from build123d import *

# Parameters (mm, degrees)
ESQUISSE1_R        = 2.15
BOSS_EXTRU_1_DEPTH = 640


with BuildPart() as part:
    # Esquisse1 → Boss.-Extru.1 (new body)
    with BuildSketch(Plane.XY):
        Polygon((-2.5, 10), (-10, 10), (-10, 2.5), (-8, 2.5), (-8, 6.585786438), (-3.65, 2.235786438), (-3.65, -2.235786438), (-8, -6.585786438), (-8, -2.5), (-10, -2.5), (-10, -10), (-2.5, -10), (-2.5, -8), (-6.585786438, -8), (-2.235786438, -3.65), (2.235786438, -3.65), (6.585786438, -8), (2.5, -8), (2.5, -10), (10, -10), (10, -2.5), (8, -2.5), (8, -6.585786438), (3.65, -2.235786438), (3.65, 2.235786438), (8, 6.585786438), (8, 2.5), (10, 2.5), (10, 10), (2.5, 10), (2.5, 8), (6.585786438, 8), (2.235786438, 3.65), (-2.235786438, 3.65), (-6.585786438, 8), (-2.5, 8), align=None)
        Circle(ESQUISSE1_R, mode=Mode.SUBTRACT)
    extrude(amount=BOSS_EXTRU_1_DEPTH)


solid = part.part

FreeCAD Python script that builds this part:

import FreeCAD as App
import Part
import Sketcher

V = App.Vector
Q = App.Units.Quantity


def add_polygon(sketch, points):
    """Adds a closed chain of lines whose ends are joined by coincident constraints."""
    first, n = sketch.GeometryCount, len(points)
    for a, b in zip(points, points[1:] + points[:1]):
        sketch.addGeometry(Part.LineSegment(App.Vector(*a, 0), App.Vector(*b, 0)), False)
    for i in range(n):
        sketch.addConstraint(Sketcher.Constraint("Coincident", first + i, 2, first + (i + 1) % n, 1))

doc = App.newDocument("Part")
body = doc.addObject("PartDesign::Body", "Body")

# Sketch on XY plane
sketch1 = doc.addObject("Sketcher::SketchObject", "Sketch")
body.addObject(sketch1)
sketch1.AttachmentSupport = (doc.XY_Plane, [""])
sketch1.MapMode = "FlatFace"
add_polygon(sketch1, [(-2.5, 10), (-10, 10), (-10, 2.5), (-8, 2.5), (-8, 6.585786), (-3.65, 2.235786), (-3.65, -2.235786), (-8, -6.585786), (-8, -2.5), (-10, -2.5), (-10, -10), (-2.5, -10), (-2.5, -8), (-6.585786, -8), (-2.235786, -3.65), (2.235786, -3.65), (6.585786, -8), (2.5, -8), (2.5, -10), (10, -10), (10, -2.5), (8, -2.5), (8, -6.585786), (3.65, -2.235786), (3.65, 2.235786), (8, 6.585786), (8, 2.5), (10, 2.5), (10, 10), (2.5, 10), (2.5, 8), (6.585786, 8), (2.235786, 3.65), (-2.235786, 3.65), (-6.585786, 8), (-2.5, 8)])  # lines 0-35
sketch1.addGeometry(Part.Circle(V(0, 0, 0), V(0, 0, 1), 2.15), False)  # 36
sketch1.addConstraint([
    Sketcher.Constraint("Horizontal", 0),
    Sketcher.Constraint("Vertical", 1),
    Sketcher.Constraint("Horizontal", 2),
    Sketcher.Constraint("Vertical", 3),
    Sketcher.Constraint("Vertical", 5),
    Sketcher.Constraint("Vertical", 7),
    Sketcher.Constraint("Horizontal", 8),
    Sketcher.Constraint("Vertical", 9),
    Sketcher.Constraint("Horizontal", 10),
    Sketcher.Constraint("Vertical", 11),
    Sketcher.Constraint("Horizontal", 12),
    Sketcher.Constraint("Horizontal", 14),
    Sketcher.Constraint("Horizontal", 16),
    Sketcher.Constraint("Vertical", 17),
    Sketcher.Constraint("Horizontal", 18),
    Sketcher.Constraint("Vertical", 19),
    Sketcher.Constraint("Horizontal", 20),
    Sketcher.Constraint("Vertical", 21),
    Sketcher.Constraint("Vertical", 23),
    Sketcher.Constraint("Vertical", 25),
    Sketcher.Constraint("Horizontal", 26),
    Sketcher.Constraint("Vertical", 27),
    Sketcher.Constraint("Horizontal", 28),
    Sketcher.Constraint("Vertical", 29),
    Sketcher.Constraint("Horizontal", 30),
    Sketcher.Constraint("Horizontal", 32),
    Sketcher.Constraint("Horizontal", 34),
    Sketcher.Constraint("Vertical", 35),
    Sketcher.Constraint("Coincident", 36, 3, -1, 1),
    Sketcher.Constraint("Symmetric", 0, 2, 18, 2, -1, 1),
    Sketcher.Constraint("Symmetric", 2, 2, 20, 2, -1, 1),
    Sketcher.Constraint("Symmetric", 4, 2, 22, 2, -1, 1),
    Sketcher.Constraint("Symmetric", 6, 2, 24, 2, -1, 1),
    Sketcher.Constraint("Symmetric", 8, 2, 26, 2, -1, 1),
    Sketcher.Constraint("Symmetric", 10, 2, 28, 2, -1, 1),
    Sketcher.Constraint("Symmetric", 12, 2, 30, 2, -1, 1),
    Sketcher.Constraint("Symmetric", 13, 2, 31, 2, -1, 1),
    Sketcher.Constraint("Symmetric", 15, 2, 33, 2, -1, 1),
    Sketcher.Constraint("Symmetric", 12, 2, 15, 2, -2),
    Sketcher.Constraint("Symmetric", 10, 2, 17, 2, -2),
    Sketcher.Constraint("Symmetric", 8, 2, 19, 2, -2),
    Sketcher.Constraint("Symmetric", 6, 2, 21, 2, -2),
    Sketcher.Constraint("Perpendicular", 4, 6),
    Sketcher.Constraint("Parallel", 6, 13),
    Sketcher.Constraint("Perpendicular", 13, 15),
    Sketcher.Constraint("Parallel", 15, 22),
    Sketcher.Constraint("Perpendicular", 22, 24),
    Sketcher.Constraint("Perpendicular", 31, 33),
    Sketcher.Constraint("Horizontal", 5, 2, 22, 2),
    Sketcher.Constraint("Vertical", 11, 2, 34, 2),
    Sketcher.Constraint("Equal", 28, 1),
    Sketcher.Constraint("Equal", 34, 3),
    Sketcher.Constraint("Equal", 32, 5),
    Sketcher.Constraint("Equal", 26, 11),
    Sketcher.Constraint("Equal", 6, 13),
    Sketcher.Constraint("Diameter", 36, Q("4.3 mm")),
    Sketcher.Constraint("DistanceX", 2, 1, 2, 2, Q("2 mm")),
    Sketcher.Constraint("DistanceX", 0, 2, 0, 1, Q("7.5 mm")),
    Sketcher.Constraint("DistanceX", 0, 2, -1, 1, Q("10 mm")),
    Sketcher.Constraint("DistanceX", 4, 2, 23, 2, Q("7.3 mm")),
    Sketcher.Constraint("DistanceX", 12, 2, 12, 1, Q("4.085786 mm")),
])
pad1 = doc.addObject("PartDesign::Pad", "Pad")
body.addObject(pad1)
pad1.Profile = sketch1
pad1.Length = 640

doc.recompute()
